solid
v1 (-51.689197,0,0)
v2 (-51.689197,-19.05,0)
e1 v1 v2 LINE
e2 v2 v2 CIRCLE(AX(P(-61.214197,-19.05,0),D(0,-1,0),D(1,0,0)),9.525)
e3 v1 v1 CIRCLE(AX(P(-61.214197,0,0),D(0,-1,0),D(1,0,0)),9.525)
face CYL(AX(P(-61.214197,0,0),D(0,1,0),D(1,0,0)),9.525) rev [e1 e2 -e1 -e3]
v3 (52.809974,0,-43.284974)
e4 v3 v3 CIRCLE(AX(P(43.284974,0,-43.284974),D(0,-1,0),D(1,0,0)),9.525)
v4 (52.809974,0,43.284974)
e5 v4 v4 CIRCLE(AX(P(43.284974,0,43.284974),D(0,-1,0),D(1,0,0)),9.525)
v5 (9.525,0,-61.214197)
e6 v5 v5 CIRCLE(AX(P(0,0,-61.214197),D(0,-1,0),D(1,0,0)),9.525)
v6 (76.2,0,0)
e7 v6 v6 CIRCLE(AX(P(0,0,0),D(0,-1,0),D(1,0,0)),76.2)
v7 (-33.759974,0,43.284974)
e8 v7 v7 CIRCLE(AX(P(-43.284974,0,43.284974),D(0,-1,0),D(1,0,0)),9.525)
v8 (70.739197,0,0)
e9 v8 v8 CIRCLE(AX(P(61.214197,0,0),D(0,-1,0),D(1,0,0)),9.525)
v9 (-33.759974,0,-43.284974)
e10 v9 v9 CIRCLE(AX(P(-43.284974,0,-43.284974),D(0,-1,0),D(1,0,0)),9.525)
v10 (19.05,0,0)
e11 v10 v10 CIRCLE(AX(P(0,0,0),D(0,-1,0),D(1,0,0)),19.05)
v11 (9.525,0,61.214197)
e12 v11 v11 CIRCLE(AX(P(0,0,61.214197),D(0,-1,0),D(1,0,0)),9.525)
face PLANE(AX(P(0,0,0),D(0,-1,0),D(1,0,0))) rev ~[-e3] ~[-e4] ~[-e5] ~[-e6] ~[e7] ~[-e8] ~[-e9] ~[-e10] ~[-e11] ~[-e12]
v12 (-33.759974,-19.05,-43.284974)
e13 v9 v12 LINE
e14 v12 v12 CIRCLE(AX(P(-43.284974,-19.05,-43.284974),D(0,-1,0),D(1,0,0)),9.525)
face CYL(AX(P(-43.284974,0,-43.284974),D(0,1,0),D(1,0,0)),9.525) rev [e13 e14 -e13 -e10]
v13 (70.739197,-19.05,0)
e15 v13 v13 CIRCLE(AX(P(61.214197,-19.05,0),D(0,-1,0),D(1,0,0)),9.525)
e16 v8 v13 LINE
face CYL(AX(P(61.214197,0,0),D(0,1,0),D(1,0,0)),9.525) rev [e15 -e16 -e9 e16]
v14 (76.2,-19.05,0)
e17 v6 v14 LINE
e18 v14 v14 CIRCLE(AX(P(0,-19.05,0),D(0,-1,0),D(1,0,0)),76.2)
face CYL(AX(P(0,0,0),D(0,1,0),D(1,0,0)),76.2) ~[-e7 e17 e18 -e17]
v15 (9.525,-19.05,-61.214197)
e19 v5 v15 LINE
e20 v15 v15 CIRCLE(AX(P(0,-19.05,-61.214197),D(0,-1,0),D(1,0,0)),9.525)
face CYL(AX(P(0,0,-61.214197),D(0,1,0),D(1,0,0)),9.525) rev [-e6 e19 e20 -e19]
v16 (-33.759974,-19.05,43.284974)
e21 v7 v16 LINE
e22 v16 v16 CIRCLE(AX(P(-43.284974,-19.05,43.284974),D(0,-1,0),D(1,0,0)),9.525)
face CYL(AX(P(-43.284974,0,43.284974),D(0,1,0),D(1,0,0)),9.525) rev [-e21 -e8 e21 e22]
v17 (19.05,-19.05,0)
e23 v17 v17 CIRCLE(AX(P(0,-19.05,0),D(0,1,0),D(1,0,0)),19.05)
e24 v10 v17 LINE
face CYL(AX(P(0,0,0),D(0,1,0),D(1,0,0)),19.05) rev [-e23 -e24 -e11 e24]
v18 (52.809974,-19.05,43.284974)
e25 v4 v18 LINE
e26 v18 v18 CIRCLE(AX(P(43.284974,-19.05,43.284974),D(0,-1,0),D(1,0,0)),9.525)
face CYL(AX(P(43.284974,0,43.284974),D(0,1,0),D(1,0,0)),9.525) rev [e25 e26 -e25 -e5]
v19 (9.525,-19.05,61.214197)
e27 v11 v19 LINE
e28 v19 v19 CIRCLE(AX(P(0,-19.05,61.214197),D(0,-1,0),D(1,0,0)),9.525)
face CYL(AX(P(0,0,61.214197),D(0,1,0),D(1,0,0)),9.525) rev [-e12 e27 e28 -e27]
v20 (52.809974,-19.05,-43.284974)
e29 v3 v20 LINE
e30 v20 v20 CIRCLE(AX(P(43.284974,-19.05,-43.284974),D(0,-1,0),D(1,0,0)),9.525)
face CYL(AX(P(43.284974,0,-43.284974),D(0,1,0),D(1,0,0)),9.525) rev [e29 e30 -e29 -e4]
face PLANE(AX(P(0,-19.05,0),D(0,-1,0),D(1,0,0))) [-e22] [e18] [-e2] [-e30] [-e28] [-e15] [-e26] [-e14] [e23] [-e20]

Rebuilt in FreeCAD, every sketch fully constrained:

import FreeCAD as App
import Part
import Sketcher

V = App.Vector
Q = App.Units.Quantity

doc = App.newDocument("Part")
body = doc.addObject("PartDesign::Body", "Body")

# Sketch on XZ plane
sketch1 = body.newObject("Sketcher::SketchObject", "Sketch")
sketch1.AttachmentSupport = (doc.getObject("XZ_Plane"), [""])
sketch1.MapMode = "FlatFace"
sketch1.addGeometry(Part.Circle(V(0, 0, 0), V(0, 0, 1), 76), False)
sketch1.addGeometry(Part.Circle(V(-43, -43, 0), V(0, 0, 1), 10), False)
sketch1.addGeometry(Part.Circle(V(-61, 0, 0), V(0, 0, 1), 10), False)
sketch1.addGeometry(Part.Circle(V(0, -61, 0), V(0, 0, 1), 10), False)
sketch1.addGeometry(Part.Circle(V(43, -43, 0), V(0, 0, 1), 10), False)
sketch1.addGeometry(Part.Circle(V(61, 0, 0), V(0, 0, 1), 10), False)
sketch1.addGeometry(Part.Circle(V(-43, 43, 0), V(0, 0, 1), 10), False)
sketch1.addGeometry(Part.Circle(V(0, 61, 0), V(0, 0, 1), 10), False)
sketch1.addGeometry(Part.Circle(V(43, 43, 0), V(0, 0, 1), 10), False)
sketch1.addConstraint(Sketcher.Constraint("Coincident", 0, 3, -1, 1))
sketch1.addConstraint(Sketcher.Constraint("Equal", 1, 2))
sketch1.addConstraint(Sketcher.Constraint("Equal", 2, 3))
sketch1.addConstraint(Sketcher.Constraint("Equal", 3, 4))
sketch1.addConstraint(Sketcher.Constraint("Equal", 4, 5))
sketch1.addConstraint(Sketcher.Constraint("Equal", 5, 6))
sketch1.addConstraint(Sketcher.Constraint("Equal", 6, 7))
sketch1.addConstraint(Sketcher.Constraint("Equal", 7, 8))
sketch1.addConstraint(Sketcher.Constraint("Symmetric", 2, 3, 5, 3, -1, 1))
sketch1.addConstraint(Sketcher.Constraint("Symmetric", 4, 3, 6, 3, -1, 1))
sketch1.addConstraint(Sketcher.Constraint("Symmetric", 3, 3, 7, 3, -1, 1))
sketch1.addConstraint(Sketcher.Constraint("Symmetric", 1, 3, 8, 3, -1, 1))
sketch1.addConstraint(Sketcher.Constraint("Symmetric", 1, 3, 4, 3, -2))
sketch1.addConstraint(Sketcher.Constraint("PointOnObject", 2, 3, -1))
sketch1.addConstraint(Sketcher.Constraint("PointOnObject", 3, 3, -2))
sketch1.addConstraint(Sketcher.Constraint("Diameter", 0, Q("6 in")))
sketch1.addConstraint(Sketcher.Constraint("Diameter", 1, Q("0.75 in")))
sketch1.addConstraint(Sketcher.Constraint("DistanceX", 2, 3, 4, 3, 104.499171))
sketch1.addConstraint(Sketcher.Constraint("DistanceY", 3, 3, 6, 3, 104.499171))
sketch1.addConstraint(Sketcher.Constraint("DistanceX", 1, 3, -1, 1, 43.284974))
sketch1.addConstraint(Sketcher.Constraint("DistanceY", 1, 3, -1, 1, 43.284974))
pad1 = body.newObject("PartDesign::Pad", "Pad")
pad1.Profile = sketch1
pad1.Length = Q("0.75 in")

# Sketch on XZ plane
sketch2 = body.newObject("Sketcher::SketchObject", "Sketch001")
sketch2.AttachmentSupport = (doc.getObject("XZ_Plane"), [""])
sketch2.MapMode = "FlatFace"
sketch2.addGeometry(Part.Circle(V(0, 0, 0), V(0, 0, 1), 19), False)
sketch2.addConstraint(Sketcher.Constraint("Coincident", 0, 3, -1, 1))
sketch2.addConstraint(Sketcher.Constraint("Diameter", 0, Q("1.5 in")))
pocket1 = body.newObject("PartDesign::Pocket", "Pocket")
pocket1.Profile = sketch2
pocket1.Length = Q("1 in")
pocket1.Reversed = True

doc.recompute()
